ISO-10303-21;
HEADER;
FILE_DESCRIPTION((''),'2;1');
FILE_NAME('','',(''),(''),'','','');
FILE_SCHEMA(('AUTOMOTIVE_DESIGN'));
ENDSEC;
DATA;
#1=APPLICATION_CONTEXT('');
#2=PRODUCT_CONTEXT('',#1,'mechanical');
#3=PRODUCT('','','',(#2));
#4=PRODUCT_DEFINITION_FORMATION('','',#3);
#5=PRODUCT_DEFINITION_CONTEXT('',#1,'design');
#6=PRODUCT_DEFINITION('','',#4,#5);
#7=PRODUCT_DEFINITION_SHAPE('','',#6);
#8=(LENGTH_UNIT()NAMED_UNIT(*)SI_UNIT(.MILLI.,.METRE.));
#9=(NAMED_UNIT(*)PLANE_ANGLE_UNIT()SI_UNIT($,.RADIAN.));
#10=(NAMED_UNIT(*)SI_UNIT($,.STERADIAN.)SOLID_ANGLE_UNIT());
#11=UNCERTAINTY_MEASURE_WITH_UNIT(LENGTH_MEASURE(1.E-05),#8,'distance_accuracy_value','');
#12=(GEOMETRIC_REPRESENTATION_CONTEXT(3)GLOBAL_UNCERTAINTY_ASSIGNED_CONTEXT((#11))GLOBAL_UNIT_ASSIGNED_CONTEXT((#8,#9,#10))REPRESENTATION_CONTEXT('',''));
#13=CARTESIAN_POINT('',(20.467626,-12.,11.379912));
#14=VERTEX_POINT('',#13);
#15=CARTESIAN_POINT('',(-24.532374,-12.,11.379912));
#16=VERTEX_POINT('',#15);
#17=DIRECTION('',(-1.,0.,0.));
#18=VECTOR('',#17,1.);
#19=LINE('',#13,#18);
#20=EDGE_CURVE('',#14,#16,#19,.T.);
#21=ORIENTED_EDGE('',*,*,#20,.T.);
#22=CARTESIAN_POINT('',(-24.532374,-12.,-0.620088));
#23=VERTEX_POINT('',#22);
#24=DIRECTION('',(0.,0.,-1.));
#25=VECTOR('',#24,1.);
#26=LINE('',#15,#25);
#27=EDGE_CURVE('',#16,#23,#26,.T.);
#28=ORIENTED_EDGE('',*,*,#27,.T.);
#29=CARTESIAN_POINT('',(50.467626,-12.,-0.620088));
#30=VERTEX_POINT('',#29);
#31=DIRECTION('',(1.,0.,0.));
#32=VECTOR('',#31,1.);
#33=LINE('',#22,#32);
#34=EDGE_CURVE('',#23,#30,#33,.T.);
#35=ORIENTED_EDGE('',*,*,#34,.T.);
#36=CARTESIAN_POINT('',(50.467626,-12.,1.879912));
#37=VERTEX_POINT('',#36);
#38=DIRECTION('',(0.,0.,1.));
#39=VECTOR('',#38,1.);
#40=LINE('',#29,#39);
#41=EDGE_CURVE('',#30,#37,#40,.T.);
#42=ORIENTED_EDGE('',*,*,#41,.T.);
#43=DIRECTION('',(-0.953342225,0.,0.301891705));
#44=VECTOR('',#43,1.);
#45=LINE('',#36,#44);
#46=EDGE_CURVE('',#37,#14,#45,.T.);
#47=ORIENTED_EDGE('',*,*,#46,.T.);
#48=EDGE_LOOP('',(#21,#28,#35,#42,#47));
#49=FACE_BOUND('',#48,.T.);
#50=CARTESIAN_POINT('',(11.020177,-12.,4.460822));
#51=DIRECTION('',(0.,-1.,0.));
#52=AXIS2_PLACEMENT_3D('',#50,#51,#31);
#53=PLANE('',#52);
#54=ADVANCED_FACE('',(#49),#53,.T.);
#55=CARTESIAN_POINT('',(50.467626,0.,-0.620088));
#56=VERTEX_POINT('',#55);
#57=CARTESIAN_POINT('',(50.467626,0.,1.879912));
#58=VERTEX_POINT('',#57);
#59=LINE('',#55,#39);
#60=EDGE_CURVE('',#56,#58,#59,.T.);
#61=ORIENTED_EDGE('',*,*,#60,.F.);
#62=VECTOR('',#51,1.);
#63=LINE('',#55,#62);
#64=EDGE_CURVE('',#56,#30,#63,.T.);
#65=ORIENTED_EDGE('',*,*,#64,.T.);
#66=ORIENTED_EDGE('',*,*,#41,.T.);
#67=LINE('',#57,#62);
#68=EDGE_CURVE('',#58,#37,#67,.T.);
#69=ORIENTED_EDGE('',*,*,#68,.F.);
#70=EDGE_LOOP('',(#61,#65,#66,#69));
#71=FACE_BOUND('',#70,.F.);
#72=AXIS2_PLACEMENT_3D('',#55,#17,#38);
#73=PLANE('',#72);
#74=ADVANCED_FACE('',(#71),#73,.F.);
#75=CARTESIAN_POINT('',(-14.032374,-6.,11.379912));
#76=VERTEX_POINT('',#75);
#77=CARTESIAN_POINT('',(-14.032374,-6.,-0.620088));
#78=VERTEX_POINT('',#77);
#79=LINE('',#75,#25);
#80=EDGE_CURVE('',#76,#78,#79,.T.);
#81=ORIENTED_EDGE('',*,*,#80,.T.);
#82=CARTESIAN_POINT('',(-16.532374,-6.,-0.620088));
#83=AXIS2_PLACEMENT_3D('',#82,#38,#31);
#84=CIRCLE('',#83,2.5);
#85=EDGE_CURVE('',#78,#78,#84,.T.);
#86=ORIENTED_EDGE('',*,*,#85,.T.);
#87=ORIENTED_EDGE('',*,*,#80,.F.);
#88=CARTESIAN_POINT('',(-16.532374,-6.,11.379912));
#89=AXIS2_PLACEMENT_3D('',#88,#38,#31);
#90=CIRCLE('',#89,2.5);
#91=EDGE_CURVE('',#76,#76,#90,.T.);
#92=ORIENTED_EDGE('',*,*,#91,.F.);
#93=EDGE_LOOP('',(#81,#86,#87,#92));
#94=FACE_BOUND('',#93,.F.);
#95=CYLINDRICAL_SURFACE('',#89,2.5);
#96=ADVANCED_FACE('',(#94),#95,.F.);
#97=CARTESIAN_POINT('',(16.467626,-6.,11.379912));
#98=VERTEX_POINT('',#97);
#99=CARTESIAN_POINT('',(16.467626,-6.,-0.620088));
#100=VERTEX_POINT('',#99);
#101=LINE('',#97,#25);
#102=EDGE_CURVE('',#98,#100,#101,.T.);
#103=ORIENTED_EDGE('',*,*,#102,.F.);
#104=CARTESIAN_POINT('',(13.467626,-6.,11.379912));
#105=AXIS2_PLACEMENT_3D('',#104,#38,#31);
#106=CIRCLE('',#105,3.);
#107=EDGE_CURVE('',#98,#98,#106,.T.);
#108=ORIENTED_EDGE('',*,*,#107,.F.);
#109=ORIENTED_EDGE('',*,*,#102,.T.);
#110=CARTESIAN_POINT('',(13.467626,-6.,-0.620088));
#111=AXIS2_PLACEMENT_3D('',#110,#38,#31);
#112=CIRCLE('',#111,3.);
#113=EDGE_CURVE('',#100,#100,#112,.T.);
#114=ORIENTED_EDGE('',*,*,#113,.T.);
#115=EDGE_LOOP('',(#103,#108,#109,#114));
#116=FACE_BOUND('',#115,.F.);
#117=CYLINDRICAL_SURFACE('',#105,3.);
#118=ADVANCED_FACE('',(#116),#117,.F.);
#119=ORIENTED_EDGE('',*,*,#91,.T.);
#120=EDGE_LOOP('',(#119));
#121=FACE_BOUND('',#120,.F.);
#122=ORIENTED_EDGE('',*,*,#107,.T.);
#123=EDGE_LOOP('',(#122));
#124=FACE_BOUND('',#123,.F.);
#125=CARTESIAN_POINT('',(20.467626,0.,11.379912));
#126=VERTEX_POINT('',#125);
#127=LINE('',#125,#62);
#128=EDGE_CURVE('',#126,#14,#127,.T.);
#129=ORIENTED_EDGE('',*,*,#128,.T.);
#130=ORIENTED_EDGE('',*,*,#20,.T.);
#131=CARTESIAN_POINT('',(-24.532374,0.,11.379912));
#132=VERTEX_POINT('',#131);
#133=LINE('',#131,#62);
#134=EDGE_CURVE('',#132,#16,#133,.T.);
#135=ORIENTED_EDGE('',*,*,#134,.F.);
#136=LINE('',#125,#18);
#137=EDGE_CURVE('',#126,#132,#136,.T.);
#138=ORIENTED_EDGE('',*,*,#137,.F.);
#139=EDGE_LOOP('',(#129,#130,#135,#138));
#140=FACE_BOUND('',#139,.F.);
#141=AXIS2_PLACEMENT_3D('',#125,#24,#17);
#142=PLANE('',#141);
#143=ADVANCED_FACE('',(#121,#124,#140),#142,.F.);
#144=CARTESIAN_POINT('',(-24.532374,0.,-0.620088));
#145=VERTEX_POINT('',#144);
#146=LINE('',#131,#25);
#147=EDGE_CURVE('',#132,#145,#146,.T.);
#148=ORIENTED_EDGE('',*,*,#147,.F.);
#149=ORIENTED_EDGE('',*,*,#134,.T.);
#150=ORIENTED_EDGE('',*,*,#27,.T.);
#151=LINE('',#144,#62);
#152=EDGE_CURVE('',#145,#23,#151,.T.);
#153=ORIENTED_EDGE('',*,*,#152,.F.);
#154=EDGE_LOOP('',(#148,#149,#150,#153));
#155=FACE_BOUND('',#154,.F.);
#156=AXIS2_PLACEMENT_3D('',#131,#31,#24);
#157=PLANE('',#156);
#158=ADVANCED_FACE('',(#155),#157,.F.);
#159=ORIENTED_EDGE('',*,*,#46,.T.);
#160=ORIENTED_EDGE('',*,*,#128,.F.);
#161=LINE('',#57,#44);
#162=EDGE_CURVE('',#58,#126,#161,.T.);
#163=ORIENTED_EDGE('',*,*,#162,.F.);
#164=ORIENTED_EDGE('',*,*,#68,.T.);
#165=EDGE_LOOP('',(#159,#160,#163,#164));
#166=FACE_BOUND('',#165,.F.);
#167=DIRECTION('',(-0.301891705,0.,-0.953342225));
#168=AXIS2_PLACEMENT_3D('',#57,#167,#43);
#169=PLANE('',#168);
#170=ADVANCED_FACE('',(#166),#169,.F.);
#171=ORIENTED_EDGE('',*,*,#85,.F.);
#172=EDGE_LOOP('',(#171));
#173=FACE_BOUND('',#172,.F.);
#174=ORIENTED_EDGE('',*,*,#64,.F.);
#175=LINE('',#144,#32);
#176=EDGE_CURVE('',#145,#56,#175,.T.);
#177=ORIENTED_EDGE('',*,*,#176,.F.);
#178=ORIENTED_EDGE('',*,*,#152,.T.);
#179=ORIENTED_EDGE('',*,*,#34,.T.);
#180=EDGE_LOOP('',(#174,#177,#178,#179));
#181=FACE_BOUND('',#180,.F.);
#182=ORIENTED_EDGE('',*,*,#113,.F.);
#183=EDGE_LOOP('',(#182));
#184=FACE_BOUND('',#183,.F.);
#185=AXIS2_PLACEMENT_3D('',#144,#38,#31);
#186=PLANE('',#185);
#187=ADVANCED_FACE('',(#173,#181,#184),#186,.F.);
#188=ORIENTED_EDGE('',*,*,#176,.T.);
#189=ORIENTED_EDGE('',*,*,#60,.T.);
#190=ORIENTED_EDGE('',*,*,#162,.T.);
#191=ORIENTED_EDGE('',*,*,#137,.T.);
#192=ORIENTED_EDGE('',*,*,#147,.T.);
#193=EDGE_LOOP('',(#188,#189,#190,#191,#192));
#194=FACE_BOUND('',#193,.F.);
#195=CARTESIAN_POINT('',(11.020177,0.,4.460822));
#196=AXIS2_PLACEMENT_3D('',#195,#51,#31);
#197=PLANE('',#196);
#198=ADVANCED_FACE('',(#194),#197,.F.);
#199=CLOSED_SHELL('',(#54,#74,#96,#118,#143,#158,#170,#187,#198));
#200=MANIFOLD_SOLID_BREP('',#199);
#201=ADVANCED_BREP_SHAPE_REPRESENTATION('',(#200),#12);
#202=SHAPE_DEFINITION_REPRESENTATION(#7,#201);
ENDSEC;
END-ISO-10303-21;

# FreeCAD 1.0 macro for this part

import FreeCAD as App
import Part
import Sketcher

V = App.Vector
Q = App.Units.Quantity


def add_polygon(sketch, points):
    """Adds a closed chain of lines whose ends are joined by coincident constraints."""
    first, n = sketch.GeometryCount, len(points)
    for a, b in zip(points, points[1:] + points[:1]):
        sketch.addGeometry(Part.LineSegment(App.Vector(*a, 0), App.Vector(*b, 0)), False)
    for i in range(n):
        sketch.addConstraint(Sketcher.Constraint("Coincident", first + i, 2, first + (i + 1) % n, 1))

doc = App.newDocument("Part")
body = doc.addObject("PartDesign::Body", "Body")

sketch1 = body.newObject("Sketcher::SketchObject", "Sketch")
sketch1.AttachmentSupport = (doc.getObject("XZ_Plane"), [""])
sketch1.MapMode = "FlatFace"
add_polygon(sketch1, [(20.5, 11.4), (-24.5, 11.4), (-24.5, -0.6), (50.5, -0.6), (50.5, 1.9)])
sketch1.addConstraint(Sketcher.Constraint("Horizontal", 0))
sketch1.addConstraint(Sketcher.Constraint("Vertical", 1))
sketch1.addConstraint(Sketcher.Constraint("Horizontal", 2))
sketch1.addConstraint(Sketcher.Constraint("Vertical", 3))
sketch1.addConstraint(Sketcher.Constraint("DistanceX", 0, 2, 0, 1, Q("45 mm")))
sketch1.addConstraint(Sketcher.Constraint("DistanceX", 2, 1, 2, 2, Q("75 mm")))
sketch1.addConstraint(Sketcher.Constraint("DistanceY", 1, 2, 1, 1, Q("12 mm")))
sketch1.addConstraint(Sketcher.Constraint("DistanceY", 3, 1, 3, 2, Q("2.5 mm")))
sketch1.addConstraint(Sketcher.Constraint("DistanceY", -1, 1, 0, 2, Q("11.379912 mm")))
sketch1.addConstraint(Sketcher.Constraint("DistanceX", 0, 2, -1, 1, Q("24.532374 mm")))
pad1 = body.newObject("PartDesign::Pad", "Pad")
pad1.Profile = sketch1
pad1.Length = 12

sketch2 = body.newObject("Sketcher::SketchObject", "Sketch001")
sketch2.AttachmentSupport = (doc.getObject("XY_Plane"), [""])
sketch2.MapMode = "FlatFace"
sketch2.AttachmentOffset = App.Placement(V(0, 0, 11.379912), App.Rotation())
sketch2.addGeometry(Part.Circle(V(-16.5, -6, 0), V(0, 0, 1), 2.5), False)
sketch2.addGeometry(Part.Circle(V(13.5, -6, 0), V(0, 0, 1), 3), False)
sketch2.addConstraint(Sketcher.Constraint("Horizontal", 0, 3, 1, 3))
sketch2.addConstraint(Sketcher.Constraint("Diameter", 0, Q("5 mm")))
sketch2.addConstraint(Sketcher.Constraint("Diameter", 1, Q("6 mm")))
sketch2.addConstraint(Sketcher.Constraint("DistanceY", 0, 3, -1, 1, Q("6 mm")))
sketch2.addConstraint(Sketcher.Constraint("DistanceX", 0, 3, 1, 3, Q("30 mm")))
sketch2.addConstraint(Sketcher.Constraint("DistanceX", 0, 3, -1, 1, Q("16.532374 mm")))
pocket1 = body.newObject("PartDesign::Pocket", "Pocket")
pocket1.Profile = sketch2
pocket1.Length = 25

doc.recompute()
